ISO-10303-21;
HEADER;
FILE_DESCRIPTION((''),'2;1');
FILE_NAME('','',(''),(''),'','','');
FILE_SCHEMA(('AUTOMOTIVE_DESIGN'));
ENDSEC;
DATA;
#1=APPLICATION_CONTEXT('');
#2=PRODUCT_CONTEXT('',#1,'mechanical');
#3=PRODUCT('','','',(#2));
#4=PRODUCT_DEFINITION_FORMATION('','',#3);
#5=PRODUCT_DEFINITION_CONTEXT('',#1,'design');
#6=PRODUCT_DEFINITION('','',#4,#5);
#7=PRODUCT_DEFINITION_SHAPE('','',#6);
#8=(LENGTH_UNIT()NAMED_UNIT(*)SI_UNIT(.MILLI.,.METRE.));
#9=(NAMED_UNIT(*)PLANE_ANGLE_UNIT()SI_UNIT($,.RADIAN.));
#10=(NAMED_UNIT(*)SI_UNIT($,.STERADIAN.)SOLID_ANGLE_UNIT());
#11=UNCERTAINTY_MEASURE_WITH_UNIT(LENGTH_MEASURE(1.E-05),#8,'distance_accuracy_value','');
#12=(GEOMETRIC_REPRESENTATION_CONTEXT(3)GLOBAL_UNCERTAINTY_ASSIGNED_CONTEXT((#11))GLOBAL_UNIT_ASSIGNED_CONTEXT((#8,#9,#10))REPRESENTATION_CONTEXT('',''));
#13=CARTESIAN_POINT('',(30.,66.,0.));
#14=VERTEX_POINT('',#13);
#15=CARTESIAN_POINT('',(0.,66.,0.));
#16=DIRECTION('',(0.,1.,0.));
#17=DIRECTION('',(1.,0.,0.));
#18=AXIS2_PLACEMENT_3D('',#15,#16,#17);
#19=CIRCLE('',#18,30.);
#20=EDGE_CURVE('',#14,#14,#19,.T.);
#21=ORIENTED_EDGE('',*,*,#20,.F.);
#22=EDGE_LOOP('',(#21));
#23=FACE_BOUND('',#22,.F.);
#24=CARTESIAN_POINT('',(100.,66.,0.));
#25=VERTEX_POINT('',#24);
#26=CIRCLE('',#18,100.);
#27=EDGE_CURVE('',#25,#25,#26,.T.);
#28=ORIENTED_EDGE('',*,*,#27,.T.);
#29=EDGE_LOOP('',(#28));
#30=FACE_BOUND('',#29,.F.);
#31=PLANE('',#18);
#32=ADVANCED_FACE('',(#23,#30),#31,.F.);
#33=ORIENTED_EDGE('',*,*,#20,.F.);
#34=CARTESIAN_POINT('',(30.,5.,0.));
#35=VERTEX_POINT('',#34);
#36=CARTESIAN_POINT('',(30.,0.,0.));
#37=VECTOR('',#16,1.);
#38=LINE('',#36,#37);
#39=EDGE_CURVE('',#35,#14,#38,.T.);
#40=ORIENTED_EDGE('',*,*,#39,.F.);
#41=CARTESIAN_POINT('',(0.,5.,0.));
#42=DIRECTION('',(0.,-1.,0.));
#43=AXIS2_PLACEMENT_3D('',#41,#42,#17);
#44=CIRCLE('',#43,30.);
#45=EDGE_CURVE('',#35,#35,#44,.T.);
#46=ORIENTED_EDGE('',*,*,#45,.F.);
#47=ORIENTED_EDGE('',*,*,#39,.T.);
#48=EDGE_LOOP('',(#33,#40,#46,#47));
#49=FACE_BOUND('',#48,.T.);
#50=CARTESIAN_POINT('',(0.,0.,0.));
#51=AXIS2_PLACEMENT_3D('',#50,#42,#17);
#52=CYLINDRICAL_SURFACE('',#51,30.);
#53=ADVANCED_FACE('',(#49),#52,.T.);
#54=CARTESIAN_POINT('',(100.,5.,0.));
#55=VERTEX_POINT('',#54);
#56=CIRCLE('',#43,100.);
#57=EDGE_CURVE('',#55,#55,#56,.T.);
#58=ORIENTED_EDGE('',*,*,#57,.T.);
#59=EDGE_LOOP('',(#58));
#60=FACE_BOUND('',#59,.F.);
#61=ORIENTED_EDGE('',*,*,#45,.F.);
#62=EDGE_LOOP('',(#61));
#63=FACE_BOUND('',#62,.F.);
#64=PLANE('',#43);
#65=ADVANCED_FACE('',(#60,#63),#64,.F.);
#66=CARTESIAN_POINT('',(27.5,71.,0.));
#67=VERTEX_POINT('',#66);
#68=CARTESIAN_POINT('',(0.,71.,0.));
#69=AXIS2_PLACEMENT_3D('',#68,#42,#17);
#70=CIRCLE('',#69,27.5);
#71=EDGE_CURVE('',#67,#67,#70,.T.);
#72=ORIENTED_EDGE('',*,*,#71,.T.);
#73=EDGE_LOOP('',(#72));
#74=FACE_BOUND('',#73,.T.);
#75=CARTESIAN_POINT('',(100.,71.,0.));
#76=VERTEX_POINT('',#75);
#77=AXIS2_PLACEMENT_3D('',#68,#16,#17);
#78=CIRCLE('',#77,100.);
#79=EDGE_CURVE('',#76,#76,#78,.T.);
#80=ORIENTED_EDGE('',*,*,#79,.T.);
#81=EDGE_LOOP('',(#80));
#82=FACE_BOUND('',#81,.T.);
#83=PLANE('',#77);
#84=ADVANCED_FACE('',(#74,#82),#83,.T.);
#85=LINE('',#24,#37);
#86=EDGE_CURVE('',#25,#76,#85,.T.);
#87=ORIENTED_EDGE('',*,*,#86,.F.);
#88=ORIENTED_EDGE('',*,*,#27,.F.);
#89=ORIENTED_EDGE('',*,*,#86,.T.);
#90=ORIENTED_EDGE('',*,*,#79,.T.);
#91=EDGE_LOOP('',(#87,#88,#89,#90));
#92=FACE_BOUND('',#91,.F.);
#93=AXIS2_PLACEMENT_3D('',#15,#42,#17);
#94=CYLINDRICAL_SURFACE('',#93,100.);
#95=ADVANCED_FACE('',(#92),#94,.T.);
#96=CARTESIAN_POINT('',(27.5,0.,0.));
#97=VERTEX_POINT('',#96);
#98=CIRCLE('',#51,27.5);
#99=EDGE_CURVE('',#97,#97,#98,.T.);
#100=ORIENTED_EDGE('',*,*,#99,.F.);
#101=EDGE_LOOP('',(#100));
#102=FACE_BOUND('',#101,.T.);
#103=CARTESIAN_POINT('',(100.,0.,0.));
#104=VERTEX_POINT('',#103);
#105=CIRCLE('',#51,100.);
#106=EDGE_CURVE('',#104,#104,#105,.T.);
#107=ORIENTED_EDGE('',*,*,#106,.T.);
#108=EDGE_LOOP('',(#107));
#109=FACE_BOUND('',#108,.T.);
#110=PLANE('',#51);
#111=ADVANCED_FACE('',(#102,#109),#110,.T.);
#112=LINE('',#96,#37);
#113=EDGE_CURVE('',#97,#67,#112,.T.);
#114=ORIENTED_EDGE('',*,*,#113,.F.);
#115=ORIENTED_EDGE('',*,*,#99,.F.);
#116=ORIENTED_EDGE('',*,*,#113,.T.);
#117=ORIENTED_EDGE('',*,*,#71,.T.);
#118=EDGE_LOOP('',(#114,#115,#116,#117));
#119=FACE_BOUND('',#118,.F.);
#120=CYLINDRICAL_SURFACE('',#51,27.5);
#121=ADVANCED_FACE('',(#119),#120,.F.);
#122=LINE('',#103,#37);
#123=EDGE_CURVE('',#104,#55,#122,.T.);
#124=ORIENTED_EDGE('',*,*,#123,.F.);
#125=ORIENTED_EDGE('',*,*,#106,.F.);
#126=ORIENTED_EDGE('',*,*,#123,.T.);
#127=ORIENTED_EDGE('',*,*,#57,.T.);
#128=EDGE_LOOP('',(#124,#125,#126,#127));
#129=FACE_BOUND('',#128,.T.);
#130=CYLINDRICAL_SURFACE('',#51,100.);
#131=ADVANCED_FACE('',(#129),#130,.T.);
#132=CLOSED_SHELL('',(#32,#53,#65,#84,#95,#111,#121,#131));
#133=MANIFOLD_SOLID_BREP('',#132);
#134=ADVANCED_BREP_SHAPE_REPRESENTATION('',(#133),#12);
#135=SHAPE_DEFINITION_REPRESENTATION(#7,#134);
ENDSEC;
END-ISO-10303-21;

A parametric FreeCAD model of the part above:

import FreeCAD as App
import Part
import Sketcher
from FreeCAD import Vector
Q = App.Units.Quantity

doc = App.newDocument("Part")
body = doc.addObject("PartDesign::Body", "Body")

sketch1 = doc.addObject("Sketcher::SketchObject", "Sketch")
body.addObject(sketch1)
sketch1.AttachmentSupport = (doc.XZ_Plane, [""])
sketch1.MapMode = "FlatFace"
sketch1.addGeometry([
    Part.Circle(Vector(0, 0, 0), Vector(0, 0, 1), 100),
    Part.Circle(Vector(0, 0, 0), Vector(0, 0, 1), 30),
], False)
sketch1.addConstraint([
    Sketcher.Constraint("Coincident", 0, 3, -1, 1),
    Sketcher.Constraint("Coincident", 1, 3, -1, 1),
    Sketcher.Constraint("Diameter", 0, Q("200 mm")),
    Sketcher.Constraint("Diameter", 1, Q("60 mm")),
])
pad1 = doc.addObject("PartDesign::Pad", "Pad")
body.addObject(pad1)
pad1.Profile = sketch1
pad1.Length = 5
pad1.Reversed = True
body2 = doc.addObject("PartDesign::Body", "Body001")

sketch2 = doc.addObject("Sketcher::SketchObject", "Sketch001")
body2.addObject(sketch2)
sketch2.AttachmentSupport = (doc.getObject("XZ_Plane001"), [""])
sketch2.MapMode = "FlatFace"
sketch2.AttachmentOffset = App.Placement(Vector(0, 0, -66), App.Rotation())
sketch2.addGeometry([
    Part.Circle(Vector(0, 0, 0), Vector(0, 0, 1), 100),
    Part.Circle(Vector(0, 0, 0), Vector(0, 0, 1), 30),
], False)
sketch2.addConstraint([
    Sketcher.Constraint("Coincident", 0, 3, -1, 1),
    Sketcher.Constraint("Coincident", 1, 3, -1, 1),
    Sketcher.Constraint("Diameter", 0, Q("200 mm")),
    Sketcher.Constraint("Diameter", 1, Q("60 mm")),
])
pad2 = doc.addObject("PartDesign::Pad", "Pad001")
body2.addObject(pad2)
pad2.Profile = sketch2
pad2.Length = 5
pad2.Reversed = True
body.AllowCompound = True
doc.recompute()

boolean = doc.addObject("PartDesign::Boolean", "Boolean")
body.addObject(boolean)
boolean.Type = "Fuse"
boolean.addObjects([body2])

sketch3 = doc.addObject("Sketcher::SketchObject", "Sketch002")
body.addObject(sketch3)
sketch3.AttachmentSupport = (doc.XZ_Plane, [""])
sketch3.MapMode = "FlatFace"
sketch3.addGeometry([
    Part.Circle(Vector(0, 0, 0), Vector(0, 0, 1), 30),
    Part.Circle(Vector(0, 0, 0), Vector(0, 0, 1), 28),
], False)
sketch3.addConstraint([
    Sketcher.Constraint("Coincident", 0, 3, -1, 1),
    Sketcher.Constraint("Coincident", 1, 3, -1, 1),
    Sketcher.Constraint("Diameter", 0, Q("60 mm")),
    Sketcher.Constraint("Diameter", 1, Q("55 mm")),
])
pad3 = doc.addObject("PartDesign::Pad", "Pad002")
body.addObject(pad3)
pad3.Profile = sketch3
pad3.Length = 71
pad3.Reversed = True

doc.recompute()
